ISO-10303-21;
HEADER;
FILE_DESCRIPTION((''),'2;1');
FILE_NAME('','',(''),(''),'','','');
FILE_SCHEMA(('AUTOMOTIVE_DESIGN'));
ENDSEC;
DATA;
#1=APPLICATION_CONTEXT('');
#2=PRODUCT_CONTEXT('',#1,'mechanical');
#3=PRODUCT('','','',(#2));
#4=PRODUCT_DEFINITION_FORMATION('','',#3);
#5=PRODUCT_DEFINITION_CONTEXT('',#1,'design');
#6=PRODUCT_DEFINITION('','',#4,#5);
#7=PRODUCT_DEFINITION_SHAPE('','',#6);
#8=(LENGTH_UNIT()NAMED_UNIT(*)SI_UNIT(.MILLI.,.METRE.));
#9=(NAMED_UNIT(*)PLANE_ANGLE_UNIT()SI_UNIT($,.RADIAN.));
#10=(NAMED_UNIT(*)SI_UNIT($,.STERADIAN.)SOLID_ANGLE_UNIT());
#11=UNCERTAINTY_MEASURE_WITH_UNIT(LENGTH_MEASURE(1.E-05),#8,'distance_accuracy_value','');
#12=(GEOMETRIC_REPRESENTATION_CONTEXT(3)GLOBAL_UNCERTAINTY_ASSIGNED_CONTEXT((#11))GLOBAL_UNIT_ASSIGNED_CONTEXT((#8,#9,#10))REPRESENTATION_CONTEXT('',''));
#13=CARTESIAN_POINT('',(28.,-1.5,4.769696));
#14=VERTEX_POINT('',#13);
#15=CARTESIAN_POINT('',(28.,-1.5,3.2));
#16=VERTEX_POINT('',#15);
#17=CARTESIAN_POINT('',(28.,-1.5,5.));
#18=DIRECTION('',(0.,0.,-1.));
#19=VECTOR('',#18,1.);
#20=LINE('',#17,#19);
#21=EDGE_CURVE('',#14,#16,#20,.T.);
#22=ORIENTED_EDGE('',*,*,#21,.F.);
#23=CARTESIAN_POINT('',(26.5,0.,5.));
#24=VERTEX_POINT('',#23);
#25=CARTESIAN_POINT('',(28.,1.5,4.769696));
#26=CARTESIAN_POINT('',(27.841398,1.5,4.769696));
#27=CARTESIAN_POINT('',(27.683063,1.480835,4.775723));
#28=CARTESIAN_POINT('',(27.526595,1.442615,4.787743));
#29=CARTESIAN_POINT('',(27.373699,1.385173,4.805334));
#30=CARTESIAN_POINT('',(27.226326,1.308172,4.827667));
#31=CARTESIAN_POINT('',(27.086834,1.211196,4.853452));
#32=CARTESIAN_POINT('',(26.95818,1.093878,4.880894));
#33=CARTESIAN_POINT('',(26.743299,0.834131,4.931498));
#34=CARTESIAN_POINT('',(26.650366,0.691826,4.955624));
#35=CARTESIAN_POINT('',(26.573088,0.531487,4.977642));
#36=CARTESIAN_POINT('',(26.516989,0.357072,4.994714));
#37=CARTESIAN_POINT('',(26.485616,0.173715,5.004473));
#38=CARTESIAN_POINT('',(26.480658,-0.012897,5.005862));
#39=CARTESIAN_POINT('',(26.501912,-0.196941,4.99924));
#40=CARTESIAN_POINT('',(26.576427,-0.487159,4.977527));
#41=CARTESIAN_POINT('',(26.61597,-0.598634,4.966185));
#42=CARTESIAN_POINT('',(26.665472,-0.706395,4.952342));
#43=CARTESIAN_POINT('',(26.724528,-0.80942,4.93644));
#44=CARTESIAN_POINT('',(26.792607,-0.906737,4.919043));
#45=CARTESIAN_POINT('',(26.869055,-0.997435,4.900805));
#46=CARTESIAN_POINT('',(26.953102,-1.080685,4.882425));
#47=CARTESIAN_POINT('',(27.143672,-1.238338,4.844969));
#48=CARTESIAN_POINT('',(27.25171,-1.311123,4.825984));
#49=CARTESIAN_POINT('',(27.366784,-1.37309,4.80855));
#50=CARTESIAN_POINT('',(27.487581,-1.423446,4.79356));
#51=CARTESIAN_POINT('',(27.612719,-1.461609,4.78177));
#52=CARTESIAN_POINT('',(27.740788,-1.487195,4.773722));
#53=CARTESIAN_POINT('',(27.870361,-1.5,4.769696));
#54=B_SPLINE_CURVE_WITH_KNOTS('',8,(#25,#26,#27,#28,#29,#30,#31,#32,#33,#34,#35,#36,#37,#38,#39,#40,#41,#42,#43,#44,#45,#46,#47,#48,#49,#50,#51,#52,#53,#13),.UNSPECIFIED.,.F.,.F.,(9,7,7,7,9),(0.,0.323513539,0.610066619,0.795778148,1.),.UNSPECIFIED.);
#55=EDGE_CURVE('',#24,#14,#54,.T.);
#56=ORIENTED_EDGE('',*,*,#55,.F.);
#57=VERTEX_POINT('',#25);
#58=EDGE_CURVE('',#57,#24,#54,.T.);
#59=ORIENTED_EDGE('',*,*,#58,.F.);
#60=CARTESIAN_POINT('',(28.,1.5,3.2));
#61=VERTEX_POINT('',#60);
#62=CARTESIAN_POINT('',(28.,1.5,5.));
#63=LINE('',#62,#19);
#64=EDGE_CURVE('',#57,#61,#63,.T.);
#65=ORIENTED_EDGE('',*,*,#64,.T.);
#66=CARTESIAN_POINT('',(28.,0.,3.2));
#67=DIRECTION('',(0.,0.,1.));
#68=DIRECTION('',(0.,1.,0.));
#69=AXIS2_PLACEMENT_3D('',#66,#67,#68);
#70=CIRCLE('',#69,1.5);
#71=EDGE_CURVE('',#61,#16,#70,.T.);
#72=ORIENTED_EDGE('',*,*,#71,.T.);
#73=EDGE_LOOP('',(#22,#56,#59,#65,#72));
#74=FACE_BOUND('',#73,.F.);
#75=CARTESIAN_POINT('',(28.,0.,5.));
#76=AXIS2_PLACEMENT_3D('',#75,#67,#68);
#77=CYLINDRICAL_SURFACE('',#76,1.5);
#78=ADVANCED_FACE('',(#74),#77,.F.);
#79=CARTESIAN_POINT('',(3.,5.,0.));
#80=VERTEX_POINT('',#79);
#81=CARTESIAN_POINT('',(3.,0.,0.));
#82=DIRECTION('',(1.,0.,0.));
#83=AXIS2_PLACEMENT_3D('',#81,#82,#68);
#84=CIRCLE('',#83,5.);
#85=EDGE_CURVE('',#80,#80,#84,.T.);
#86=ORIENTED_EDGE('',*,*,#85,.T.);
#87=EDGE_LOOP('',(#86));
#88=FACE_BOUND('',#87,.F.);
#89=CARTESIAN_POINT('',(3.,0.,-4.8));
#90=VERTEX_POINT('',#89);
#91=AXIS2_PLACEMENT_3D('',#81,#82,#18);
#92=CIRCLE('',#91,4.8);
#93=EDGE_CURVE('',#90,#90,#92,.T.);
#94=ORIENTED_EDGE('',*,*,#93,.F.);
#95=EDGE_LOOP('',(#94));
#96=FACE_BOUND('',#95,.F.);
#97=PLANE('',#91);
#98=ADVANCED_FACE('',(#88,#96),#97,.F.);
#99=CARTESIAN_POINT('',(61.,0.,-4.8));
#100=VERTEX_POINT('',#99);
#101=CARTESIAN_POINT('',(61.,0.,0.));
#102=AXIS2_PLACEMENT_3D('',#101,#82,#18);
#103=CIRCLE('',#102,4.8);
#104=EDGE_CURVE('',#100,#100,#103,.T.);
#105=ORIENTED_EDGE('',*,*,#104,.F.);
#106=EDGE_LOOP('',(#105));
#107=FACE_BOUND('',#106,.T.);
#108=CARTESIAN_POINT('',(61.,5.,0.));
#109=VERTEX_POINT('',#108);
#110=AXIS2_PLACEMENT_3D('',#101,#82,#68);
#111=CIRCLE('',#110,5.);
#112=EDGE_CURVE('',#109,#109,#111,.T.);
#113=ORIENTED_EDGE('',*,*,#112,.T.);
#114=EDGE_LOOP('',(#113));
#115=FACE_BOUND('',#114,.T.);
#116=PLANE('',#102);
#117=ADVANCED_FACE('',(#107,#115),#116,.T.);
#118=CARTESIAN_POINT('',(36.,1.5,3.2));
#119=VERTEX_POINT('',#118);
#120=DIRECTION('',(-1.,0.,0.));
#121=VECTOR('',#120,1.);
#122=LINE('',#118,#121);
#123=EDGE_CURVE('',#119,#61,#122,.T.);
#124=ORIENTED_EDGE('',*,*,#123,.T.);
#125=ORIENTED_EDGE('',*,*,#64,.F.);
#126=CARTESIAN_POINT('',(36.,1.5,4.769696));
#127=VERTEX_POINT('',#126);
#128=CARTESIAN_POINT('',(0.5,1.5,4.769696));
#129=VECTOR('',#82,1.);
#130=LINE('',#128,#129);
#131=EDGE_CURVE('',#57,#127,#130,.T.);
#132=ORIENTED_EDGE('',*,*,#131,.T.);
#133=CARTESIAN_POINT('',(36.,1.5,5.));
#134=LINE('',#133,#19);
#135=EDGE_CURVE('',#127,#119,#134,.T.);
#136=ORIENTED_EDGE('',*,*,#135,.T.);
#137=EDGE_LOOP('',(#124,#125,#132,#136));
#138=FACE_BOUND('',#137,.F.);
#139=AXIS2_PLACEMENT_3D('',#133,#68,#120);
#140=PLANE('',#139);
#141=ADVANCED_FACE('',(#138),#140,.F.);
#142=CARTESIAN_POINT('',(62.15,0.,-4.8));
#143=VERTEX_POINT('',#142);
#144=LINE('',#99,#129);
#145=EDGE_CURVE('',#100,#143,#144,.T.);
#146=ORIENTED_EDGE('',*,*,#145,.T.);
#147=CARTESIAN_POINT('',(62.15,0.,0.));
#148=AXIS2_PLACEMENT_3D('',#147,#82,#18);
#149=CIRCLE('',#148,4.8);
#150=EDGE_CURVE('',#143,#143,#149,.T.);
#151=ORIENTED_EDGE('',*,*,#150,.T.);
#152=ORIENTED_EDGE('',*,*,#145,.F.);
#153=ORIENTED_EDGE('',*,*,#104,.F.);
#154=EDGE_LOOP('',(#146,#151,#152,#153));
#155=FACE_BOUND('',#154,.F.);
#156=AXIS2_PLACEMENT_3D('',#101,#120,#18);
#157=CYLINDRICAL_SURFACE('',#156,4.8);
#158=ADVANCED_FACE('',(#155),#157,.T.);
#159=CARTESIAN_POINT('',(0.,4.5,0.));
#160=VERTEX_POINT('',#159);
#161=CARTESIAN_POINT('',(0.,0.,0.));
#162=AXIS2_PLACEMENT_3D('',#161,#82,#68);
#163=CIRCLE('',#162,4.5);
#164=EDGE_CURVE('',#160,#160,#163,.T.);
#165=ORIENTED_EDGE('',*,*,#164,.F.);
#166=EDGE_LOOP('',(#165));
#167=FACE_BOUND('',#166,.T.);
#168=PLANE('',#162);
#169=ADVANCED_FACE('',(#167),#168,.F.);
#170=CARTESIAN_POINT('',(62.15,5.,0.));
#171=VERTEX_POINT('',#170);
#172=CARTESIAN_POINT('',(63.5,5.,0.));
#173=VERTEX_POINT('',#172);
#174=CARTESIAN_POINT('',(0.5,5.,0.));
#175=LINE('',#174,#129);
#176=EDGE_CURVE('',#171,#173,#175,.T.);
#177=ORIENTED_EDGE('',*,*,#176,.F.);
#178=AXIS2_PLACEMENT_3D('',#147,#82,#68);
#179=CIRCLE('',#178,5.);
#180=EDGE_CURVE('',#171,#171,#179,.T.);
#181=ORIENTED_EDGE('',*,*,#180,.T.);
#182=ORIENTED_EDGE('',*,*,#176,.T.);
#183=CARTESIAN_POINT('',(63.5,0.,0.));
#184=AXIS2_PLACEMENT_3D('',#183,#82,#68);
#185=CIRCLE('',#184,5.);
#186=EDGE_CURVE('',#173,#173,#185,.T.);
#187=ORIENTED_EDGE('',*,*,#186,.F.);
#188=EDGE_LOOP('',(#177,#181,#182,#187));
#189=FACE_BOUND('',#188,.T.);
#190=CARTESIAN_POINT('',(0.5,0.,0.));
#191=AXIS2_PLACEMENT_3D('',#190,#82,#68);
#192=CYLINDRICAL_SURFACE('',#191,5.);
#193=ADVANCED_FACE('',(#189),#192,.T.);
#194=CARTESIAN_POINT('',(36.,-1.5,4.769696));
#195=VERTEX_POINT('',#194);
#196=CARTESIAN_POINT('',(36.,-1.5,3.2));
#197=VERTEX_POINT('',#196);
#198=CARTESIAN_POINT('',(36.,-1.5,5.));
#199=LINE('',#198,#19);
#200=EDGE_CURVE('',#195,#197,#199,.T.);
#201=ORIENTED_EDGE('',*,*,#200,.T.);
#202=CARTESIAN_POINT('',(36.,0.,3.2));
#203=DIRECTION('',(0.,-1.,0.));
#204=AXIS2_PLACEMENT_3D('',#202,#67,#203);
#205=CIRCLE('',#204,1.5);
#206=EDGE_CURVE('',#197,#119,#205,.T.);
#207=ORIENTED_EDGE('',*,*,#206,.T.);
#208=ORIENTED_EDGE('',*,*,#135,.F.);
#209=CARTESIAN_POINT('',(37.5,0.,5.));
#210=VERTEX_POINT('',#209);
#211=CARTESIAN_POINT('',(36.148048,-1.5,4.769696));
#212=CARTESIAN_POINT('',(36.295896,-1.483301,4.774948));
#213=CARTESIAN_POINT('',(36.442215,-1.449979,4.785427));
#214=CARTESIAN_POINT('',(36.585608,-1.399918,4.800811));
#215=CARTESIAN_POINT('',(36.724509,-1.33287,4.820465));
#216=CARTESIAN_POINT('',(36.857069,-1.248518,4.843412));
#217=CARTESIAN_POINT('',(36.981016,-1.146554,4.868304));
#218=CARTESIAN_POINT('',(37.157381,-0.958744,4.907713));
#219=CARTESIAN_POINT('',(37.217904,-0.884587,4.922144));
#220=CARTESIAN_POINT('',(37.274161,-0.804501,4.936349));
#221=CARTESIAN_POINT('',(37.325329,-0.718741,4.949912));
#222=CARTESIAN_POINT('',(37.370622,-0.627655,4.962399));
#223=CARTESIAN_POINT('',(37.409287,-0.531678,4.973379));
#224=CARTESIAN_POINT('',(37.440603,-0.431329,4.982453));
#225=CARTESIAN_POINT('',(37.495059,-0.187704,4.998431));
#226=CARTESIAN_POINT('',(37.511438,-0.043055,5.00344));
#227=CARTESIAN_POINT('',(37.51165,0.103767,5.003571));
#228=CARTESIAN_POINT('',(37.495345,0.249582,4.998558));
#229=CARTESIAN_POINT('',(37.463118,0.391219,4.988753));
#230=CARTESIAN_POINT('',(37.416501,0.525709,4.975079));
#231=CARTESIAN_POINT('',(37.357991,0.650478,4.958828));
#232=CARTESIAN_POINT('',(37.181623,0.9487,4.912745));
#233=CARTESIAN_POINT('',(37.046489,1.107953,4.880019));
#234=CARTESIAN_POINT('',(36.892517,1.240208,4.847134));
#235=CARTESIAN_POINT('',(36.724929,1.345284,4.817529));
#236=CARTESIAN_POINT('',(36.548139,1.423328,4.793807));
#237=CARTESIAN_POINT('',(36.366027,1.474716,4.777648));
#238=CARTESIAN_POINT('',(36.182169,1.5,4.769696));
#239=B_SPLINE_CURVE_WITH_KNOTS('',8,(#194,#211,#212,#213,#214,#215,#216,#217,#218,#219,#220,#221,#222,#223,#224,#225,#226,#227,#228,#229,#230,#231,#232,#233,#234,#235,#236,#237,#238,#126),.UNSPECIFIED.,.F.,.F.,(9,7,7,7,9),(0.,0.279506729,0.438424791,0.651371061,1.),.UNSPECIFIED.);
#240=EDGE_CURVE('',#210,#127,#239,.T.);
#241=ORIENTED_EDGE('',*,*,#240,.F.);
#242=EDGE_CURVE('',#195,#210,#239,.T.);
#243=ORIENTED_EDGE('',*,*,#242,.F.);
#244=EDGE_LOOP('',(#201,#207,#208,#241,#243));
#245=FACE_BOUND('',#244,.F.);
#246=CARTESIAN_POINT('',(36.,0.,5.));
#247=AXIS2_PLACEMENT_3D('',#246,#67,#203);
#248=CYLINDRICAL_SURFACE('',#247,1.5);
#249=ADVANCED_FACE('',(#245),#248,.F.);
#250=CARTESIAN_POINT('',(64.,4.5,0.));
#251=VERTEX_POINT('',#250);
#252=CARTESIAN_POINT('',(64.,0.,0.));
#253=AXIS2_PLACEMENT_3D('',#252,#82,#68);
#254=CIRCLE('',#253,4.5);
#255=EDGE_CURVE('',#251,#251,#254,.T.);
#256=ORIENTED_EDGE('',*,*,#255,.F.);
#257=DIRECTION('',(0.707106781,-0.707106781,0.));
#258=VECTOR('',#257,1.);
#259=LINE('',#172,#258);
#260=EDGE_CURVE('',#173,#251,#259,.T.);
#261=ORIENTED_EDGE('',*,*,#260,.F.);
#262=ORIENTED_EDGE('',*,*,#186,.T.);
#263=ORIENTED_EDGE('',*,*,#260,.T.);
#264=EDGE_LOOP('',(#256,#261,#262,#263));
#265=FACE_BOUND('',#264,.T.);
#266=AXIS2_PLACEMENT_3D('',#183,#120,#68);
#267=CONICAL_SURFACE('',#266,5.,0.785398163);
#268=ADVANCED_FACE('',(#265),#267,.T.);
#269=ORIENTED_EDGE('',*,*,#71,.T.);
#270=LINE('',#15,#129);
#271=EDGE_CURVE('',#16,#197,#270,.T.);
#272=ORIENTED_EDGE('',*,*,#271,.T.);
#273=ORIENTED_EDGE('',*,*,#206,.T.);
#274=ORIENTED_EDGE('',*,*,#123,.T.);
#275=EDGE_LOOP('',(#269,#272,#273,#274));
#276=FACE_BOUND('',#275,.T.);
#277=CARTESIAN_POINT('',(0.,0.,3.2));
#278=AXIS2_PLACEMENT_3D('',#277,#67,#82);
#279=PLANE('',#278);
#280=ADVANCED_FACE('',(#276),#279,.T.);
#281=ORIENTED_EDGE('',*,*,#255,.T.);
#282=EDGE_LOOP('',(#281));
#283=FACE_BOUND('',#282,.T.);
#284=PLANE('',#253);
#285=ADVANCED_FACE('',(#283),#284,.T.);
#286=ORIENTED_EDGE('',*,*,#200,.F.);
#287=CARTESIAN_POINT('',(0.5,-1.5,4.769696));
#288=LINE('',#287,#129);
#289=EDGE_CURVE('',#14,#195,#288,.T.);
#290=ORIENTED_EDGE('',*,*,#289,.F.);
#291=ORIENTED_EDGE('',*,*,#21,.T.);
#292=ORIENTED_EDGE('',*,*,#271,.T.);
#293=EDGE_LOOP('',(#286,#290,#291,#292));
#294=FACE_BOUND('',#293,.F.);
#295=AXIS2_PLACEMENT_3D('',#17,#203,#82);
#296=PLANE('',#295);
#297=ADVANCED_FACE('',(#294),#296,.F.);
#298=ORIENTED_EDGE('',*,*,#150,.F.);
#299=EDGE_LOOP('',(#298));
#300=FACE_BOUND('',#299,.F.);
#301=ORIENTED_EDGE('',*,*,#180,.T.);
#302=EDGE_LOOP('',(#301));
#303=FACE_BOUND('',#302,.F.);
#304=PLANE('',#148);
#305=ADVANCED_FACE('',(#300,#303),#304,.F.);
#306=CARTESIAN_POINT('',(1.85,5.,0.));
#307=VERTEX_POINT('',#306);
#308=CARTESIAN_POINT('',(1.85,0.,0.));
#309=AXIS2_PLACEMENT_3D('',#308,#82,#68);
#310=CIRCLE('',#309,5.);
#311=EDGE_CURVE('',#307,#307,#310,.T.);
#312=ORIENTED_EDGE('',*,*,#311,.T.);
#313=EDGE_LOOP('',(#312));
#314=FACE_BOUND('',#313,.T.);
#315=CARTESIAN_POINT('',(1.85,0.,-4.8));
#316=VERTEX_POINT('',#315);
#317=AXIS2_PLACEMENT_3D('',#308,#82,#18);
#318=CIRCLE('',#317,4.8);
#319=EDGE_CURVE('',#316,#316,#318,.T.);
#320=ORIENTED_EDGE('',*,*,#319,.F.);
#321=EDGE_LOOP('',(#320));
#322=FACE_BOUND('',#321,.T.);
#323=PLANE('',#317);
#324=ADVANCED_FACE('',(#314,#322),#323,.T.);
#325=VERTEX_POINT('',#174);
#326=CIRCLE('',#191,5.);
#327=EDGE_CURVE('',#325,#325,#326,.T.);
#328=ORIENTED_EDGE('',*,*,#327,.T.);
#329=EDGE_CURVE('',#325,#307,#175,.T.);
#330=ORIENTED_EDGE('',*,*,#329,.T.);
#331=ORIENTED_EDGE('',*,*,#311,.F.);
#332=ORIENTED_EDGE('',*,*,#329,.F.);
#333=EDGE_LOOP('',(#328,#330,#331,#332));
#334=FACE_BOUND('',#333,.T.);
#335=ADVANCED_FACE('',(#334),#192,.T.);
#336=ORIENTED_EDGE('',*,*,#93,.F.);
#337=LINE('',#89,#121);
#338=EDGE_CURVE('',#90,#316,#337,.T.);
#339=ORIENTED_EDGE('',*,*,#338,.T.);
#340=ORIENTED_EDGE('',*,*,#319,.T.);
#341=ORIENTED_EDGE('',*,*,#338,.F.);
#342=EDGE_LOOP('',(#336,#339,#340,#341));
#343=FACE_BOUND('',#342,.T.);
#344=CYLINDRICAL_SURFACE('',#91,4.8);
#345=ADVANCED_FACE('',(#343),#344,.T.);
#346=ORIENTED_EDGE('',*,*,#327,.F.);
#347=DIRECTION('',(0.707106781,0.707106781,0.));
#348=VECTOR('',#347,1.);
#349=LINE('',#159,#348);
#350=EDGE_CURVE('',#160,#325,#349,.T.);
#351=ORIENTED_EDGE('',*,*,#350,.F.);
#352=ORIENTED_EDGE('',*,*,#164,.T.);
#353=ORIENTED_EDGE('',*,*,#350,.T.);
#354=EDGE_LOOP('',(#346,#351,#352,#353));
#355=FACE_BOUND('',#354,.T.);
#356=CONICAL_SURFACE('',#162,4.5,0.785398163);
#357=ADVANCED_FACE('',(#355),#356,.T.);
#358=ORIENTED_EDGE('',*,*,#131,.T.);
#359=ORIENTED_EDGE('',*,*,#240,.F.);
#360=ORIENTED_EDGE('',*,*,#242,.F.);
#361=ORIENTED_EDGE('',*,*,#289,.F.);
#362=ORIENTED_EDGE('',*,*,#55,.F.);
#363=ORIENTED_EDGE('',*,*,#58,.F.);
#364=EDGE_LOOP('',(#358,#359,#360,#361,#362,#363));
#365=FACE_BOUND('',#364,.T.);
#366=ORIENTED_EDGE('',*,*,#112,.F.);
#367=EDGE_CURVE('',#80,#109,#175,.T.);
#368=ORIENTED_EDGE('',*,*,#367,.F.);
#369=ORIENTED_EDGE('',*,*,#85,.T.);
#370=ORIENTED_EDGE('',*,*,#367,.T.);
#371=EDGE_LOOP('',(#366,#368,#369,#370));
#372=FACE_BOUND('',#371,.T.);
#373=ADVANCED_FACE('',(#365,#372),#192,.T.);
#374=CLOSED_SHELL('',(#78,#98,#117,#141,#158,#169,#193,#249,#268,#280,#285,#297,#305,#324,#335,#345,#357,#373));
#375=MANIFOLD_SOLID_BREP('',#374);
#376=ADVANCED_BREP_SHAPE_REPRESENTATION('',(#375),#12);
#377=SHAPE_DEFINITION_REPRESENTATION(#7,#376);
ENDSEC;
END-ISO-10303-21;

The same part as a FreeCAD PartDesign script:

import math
import FreeCAD as App
import Part
import Sketcher
from FreeCAD import Vector
Q = App.Units.Quantity

doc = App.newDocument("Part")
body = doc.addObject("PartDesign::Body", "Body")

# Sketch on XY plane
sketch1 = body.newObject("Sketcher::SketchObject", "Sketch")
sketch1.AttachmentSupport = (doc.getObject("XY_Plane"), [""])
sketch1.MapMode = "FlatFace"
sketch1.addGeometry([
    Part.LineSegment(Vector(0, 0, 0), Vector(64, 0, 0)),  # 0
    Part.LineSegment(Vector(64, 0, 0), Vector(64, 4.5, 0)),  # 1
    Part.LineSegment(Vector(64, 4.5, 0), Vector(63.5, 5, 0)),  # 2
    Part.LineSegment(Vector(63.5, 5, 0), Vector(0.5, 5, 0)),  # 3
    Part.LineSegment(Vector(0.5, 5, 0), Vector(0, 4.5, 0)),  # 4
    Part.LineSegment(Vector(0, 4.5, 0), Vector(0, 0, 0)),  # 5
], False)
sketch1.addConstraint([
    Sketcher.Constraint("Coincident", 0, 2, 1, 1),
    Sketcher.Constraint("Coincident", 1, 2, 2, 1),
    Sketcher.Constraint("Coincident", 2, 2, 3, 1),
    Sketcher.Constraint("Coincident", 3, 2, 4, 1),
    Sketcher.Constraint("Coincident", 4, 2, 5, 1),
    Sketcher.Constraint("Coincident", 5, 2, 0, 1),
    Sketcher.Constraint("Horizontal", 0),
    Sketcher.Constraint("Vertical", 1),
    Sketcher.Constraint("Horizontal", 3),
    Sketcher.Constraint("Vertical", 5),
    Sketcher.Constraint("Coincident", 5, 2, -1, 1),
    Sketcher.Constraint("Perpendicular", 2, 4),
    Sketcher.Constraint("Horizontal", 1, 2, 4, 2),
    Sketcher.Constraint("Equal", 2, 4),
    Sketcher.Constraint("DistanceX", 0, 1, 0, 2, Q("64 mm")),
    Sketcher.Constraint("DistanceX", 3, 2, 3, 1, Q("63 mm")),
    Sketcher.Constraint("DistanceY", 1, 1, 1, 2, Q("4.5 mm")),
])
revolution = body.newObject("PartDesign::Revolution", "Revolution")
revolution.Profile = sketch1
revolution.ReferenceAxis = (sketch1, ["H_Axis"])
revolution.Angle = 360

# Sketch on XY plane
sketch2 = body.newObject("Sketcher::SketchObject", "Sketch001")
sketch2.AttachmentSupport = (doc.getObject("XY_Plane"), [""])
sketch2.MapMode = "FlatFace"
sketch2.AttachmentOffset = App.Placement(Vector(0, 0, 5), App.Rotation())
sketch2.addGeometry([
    Part.LineSegment(Vector(36, 1.5, 0), Vector(28, 1.5, 0)),
    Part.ArcOfCircle(Part.Circle(Vector(28, 0, 0), Vector(0, 0, 1), 1.5), math.radians(90), math.radians(270)),
    Part.LineSegment(Vector(28, -1.5, 0), Vector(36, -1.5, 0)),
    Part.ArcOfCircle(Part.Circle(Vector(36, 0, 0), Vector(0, 0, 1), 1.5), math.radians(-90), math.radians(90)),
], False)
sketch2.addConstraint([
    Sketcher.Constraint("Tangent", 0, 2, 1, 1),
    Sketcher.Constraint("Tangent", 1, 2, 2, 1),
    Sketcher.Constraint("Tangent", 2, 2, 3, 1),
    Sketcher.Constraint("Tangent", 3, 2, 0, 1),
    Sketcher.Constraint("Horizontal", 0),
    Sketcher.Constraint("Horizontal", 2),
    Sketcher.Constraint("PointOnObject", 1, 3, -1),
    Sketcher.Constraint("Radius", 1, Q("1.5 mm")),
    Sketcher.Constraint("DistanceX", 0, 2, 0, 1, Q("8 mm")),
    Sketcher.Constraint("DistanceX", -1, 1, 1, 3, Q("28 mm")),
])
pocket1 = body.newObject("PartDesign::Pocket", "Pocket")
pocket1.Profile = sketch2
pocket1.Length = 1.8

# Sketch on YZ plane
sketch3 = body.newObject("Sketcher::SketchObject", "Sketch002")
sketch3.AttachmentSupport = (doc.getObject("YZ_Plane"), [""])
sketch3.MapMode = "FlatFace"
sketch3.AttachmentOffset = App.Placement(Vector(0, 0, 3), App.Rotation())
sketch3.addGeometry([
    Part.Circle(Vector(0, 0, 0), Vector(0, 0, 1), 10),
    Part.Circle(Vector(0, 0, 0), Vector(0, 0, 1), 4.8),
], False)
sketch3.addConstraint([
    Sketcher.Constraint("Coincident", 0, 3, -1, 1),
    Sketcher.Constraint("Coincident", 1, 3, -1, 1),
    Sketcher.Constraint("Diameter", 0, Q("20 mm")),
    Sketcher.Constraint("Diameter", 1, Q("9.6 mm")),
])
pocket2 = body.newObject("PartDesign::Pocket", "Pocket001")
pocket2.Profile = sketch3
pocket2.Length = 1.15

# Sketch on YZ plane
sketch4 = body.newObject("Sketcher::SketchObject", "Sketch003")
sketch4.AttachmentSupport = (doc.getObject("YZ_Plane"), [""])
sketch4.MapMode = "FlatFace"
sketch4.AttachmentOffset = App.Placement(Vector(0, 0, 61), App.Rotation())
sketch4.addGeometry([
    Part.Circle(Vector(0, 0, 0), Vector(0, 0, 1), 10),
    Part.Circle(Vector(0, 0, 0), Vector(0, 0, 1), 4.8),
], False)
sketch4.addConstraint([
    Sketcher.Constraint("Coincident", 0, 3, -1, 1),
    Sketcher.Constraint("Coincident", 1, 3, -1, 1),
    Sketcher.Constraint("Diameter", 0, Q("20 mm")),
    Sketcher.Constraint("Diameter", 1, Q("9.6 mm")),
])
pocket3 = body.newObject("PartDesign::Pocket", "Pocket002")
pocket3.Profile = sketch4
pocket3.Length = 1.15
pocket3.Reversed = True

doc.recompute()
